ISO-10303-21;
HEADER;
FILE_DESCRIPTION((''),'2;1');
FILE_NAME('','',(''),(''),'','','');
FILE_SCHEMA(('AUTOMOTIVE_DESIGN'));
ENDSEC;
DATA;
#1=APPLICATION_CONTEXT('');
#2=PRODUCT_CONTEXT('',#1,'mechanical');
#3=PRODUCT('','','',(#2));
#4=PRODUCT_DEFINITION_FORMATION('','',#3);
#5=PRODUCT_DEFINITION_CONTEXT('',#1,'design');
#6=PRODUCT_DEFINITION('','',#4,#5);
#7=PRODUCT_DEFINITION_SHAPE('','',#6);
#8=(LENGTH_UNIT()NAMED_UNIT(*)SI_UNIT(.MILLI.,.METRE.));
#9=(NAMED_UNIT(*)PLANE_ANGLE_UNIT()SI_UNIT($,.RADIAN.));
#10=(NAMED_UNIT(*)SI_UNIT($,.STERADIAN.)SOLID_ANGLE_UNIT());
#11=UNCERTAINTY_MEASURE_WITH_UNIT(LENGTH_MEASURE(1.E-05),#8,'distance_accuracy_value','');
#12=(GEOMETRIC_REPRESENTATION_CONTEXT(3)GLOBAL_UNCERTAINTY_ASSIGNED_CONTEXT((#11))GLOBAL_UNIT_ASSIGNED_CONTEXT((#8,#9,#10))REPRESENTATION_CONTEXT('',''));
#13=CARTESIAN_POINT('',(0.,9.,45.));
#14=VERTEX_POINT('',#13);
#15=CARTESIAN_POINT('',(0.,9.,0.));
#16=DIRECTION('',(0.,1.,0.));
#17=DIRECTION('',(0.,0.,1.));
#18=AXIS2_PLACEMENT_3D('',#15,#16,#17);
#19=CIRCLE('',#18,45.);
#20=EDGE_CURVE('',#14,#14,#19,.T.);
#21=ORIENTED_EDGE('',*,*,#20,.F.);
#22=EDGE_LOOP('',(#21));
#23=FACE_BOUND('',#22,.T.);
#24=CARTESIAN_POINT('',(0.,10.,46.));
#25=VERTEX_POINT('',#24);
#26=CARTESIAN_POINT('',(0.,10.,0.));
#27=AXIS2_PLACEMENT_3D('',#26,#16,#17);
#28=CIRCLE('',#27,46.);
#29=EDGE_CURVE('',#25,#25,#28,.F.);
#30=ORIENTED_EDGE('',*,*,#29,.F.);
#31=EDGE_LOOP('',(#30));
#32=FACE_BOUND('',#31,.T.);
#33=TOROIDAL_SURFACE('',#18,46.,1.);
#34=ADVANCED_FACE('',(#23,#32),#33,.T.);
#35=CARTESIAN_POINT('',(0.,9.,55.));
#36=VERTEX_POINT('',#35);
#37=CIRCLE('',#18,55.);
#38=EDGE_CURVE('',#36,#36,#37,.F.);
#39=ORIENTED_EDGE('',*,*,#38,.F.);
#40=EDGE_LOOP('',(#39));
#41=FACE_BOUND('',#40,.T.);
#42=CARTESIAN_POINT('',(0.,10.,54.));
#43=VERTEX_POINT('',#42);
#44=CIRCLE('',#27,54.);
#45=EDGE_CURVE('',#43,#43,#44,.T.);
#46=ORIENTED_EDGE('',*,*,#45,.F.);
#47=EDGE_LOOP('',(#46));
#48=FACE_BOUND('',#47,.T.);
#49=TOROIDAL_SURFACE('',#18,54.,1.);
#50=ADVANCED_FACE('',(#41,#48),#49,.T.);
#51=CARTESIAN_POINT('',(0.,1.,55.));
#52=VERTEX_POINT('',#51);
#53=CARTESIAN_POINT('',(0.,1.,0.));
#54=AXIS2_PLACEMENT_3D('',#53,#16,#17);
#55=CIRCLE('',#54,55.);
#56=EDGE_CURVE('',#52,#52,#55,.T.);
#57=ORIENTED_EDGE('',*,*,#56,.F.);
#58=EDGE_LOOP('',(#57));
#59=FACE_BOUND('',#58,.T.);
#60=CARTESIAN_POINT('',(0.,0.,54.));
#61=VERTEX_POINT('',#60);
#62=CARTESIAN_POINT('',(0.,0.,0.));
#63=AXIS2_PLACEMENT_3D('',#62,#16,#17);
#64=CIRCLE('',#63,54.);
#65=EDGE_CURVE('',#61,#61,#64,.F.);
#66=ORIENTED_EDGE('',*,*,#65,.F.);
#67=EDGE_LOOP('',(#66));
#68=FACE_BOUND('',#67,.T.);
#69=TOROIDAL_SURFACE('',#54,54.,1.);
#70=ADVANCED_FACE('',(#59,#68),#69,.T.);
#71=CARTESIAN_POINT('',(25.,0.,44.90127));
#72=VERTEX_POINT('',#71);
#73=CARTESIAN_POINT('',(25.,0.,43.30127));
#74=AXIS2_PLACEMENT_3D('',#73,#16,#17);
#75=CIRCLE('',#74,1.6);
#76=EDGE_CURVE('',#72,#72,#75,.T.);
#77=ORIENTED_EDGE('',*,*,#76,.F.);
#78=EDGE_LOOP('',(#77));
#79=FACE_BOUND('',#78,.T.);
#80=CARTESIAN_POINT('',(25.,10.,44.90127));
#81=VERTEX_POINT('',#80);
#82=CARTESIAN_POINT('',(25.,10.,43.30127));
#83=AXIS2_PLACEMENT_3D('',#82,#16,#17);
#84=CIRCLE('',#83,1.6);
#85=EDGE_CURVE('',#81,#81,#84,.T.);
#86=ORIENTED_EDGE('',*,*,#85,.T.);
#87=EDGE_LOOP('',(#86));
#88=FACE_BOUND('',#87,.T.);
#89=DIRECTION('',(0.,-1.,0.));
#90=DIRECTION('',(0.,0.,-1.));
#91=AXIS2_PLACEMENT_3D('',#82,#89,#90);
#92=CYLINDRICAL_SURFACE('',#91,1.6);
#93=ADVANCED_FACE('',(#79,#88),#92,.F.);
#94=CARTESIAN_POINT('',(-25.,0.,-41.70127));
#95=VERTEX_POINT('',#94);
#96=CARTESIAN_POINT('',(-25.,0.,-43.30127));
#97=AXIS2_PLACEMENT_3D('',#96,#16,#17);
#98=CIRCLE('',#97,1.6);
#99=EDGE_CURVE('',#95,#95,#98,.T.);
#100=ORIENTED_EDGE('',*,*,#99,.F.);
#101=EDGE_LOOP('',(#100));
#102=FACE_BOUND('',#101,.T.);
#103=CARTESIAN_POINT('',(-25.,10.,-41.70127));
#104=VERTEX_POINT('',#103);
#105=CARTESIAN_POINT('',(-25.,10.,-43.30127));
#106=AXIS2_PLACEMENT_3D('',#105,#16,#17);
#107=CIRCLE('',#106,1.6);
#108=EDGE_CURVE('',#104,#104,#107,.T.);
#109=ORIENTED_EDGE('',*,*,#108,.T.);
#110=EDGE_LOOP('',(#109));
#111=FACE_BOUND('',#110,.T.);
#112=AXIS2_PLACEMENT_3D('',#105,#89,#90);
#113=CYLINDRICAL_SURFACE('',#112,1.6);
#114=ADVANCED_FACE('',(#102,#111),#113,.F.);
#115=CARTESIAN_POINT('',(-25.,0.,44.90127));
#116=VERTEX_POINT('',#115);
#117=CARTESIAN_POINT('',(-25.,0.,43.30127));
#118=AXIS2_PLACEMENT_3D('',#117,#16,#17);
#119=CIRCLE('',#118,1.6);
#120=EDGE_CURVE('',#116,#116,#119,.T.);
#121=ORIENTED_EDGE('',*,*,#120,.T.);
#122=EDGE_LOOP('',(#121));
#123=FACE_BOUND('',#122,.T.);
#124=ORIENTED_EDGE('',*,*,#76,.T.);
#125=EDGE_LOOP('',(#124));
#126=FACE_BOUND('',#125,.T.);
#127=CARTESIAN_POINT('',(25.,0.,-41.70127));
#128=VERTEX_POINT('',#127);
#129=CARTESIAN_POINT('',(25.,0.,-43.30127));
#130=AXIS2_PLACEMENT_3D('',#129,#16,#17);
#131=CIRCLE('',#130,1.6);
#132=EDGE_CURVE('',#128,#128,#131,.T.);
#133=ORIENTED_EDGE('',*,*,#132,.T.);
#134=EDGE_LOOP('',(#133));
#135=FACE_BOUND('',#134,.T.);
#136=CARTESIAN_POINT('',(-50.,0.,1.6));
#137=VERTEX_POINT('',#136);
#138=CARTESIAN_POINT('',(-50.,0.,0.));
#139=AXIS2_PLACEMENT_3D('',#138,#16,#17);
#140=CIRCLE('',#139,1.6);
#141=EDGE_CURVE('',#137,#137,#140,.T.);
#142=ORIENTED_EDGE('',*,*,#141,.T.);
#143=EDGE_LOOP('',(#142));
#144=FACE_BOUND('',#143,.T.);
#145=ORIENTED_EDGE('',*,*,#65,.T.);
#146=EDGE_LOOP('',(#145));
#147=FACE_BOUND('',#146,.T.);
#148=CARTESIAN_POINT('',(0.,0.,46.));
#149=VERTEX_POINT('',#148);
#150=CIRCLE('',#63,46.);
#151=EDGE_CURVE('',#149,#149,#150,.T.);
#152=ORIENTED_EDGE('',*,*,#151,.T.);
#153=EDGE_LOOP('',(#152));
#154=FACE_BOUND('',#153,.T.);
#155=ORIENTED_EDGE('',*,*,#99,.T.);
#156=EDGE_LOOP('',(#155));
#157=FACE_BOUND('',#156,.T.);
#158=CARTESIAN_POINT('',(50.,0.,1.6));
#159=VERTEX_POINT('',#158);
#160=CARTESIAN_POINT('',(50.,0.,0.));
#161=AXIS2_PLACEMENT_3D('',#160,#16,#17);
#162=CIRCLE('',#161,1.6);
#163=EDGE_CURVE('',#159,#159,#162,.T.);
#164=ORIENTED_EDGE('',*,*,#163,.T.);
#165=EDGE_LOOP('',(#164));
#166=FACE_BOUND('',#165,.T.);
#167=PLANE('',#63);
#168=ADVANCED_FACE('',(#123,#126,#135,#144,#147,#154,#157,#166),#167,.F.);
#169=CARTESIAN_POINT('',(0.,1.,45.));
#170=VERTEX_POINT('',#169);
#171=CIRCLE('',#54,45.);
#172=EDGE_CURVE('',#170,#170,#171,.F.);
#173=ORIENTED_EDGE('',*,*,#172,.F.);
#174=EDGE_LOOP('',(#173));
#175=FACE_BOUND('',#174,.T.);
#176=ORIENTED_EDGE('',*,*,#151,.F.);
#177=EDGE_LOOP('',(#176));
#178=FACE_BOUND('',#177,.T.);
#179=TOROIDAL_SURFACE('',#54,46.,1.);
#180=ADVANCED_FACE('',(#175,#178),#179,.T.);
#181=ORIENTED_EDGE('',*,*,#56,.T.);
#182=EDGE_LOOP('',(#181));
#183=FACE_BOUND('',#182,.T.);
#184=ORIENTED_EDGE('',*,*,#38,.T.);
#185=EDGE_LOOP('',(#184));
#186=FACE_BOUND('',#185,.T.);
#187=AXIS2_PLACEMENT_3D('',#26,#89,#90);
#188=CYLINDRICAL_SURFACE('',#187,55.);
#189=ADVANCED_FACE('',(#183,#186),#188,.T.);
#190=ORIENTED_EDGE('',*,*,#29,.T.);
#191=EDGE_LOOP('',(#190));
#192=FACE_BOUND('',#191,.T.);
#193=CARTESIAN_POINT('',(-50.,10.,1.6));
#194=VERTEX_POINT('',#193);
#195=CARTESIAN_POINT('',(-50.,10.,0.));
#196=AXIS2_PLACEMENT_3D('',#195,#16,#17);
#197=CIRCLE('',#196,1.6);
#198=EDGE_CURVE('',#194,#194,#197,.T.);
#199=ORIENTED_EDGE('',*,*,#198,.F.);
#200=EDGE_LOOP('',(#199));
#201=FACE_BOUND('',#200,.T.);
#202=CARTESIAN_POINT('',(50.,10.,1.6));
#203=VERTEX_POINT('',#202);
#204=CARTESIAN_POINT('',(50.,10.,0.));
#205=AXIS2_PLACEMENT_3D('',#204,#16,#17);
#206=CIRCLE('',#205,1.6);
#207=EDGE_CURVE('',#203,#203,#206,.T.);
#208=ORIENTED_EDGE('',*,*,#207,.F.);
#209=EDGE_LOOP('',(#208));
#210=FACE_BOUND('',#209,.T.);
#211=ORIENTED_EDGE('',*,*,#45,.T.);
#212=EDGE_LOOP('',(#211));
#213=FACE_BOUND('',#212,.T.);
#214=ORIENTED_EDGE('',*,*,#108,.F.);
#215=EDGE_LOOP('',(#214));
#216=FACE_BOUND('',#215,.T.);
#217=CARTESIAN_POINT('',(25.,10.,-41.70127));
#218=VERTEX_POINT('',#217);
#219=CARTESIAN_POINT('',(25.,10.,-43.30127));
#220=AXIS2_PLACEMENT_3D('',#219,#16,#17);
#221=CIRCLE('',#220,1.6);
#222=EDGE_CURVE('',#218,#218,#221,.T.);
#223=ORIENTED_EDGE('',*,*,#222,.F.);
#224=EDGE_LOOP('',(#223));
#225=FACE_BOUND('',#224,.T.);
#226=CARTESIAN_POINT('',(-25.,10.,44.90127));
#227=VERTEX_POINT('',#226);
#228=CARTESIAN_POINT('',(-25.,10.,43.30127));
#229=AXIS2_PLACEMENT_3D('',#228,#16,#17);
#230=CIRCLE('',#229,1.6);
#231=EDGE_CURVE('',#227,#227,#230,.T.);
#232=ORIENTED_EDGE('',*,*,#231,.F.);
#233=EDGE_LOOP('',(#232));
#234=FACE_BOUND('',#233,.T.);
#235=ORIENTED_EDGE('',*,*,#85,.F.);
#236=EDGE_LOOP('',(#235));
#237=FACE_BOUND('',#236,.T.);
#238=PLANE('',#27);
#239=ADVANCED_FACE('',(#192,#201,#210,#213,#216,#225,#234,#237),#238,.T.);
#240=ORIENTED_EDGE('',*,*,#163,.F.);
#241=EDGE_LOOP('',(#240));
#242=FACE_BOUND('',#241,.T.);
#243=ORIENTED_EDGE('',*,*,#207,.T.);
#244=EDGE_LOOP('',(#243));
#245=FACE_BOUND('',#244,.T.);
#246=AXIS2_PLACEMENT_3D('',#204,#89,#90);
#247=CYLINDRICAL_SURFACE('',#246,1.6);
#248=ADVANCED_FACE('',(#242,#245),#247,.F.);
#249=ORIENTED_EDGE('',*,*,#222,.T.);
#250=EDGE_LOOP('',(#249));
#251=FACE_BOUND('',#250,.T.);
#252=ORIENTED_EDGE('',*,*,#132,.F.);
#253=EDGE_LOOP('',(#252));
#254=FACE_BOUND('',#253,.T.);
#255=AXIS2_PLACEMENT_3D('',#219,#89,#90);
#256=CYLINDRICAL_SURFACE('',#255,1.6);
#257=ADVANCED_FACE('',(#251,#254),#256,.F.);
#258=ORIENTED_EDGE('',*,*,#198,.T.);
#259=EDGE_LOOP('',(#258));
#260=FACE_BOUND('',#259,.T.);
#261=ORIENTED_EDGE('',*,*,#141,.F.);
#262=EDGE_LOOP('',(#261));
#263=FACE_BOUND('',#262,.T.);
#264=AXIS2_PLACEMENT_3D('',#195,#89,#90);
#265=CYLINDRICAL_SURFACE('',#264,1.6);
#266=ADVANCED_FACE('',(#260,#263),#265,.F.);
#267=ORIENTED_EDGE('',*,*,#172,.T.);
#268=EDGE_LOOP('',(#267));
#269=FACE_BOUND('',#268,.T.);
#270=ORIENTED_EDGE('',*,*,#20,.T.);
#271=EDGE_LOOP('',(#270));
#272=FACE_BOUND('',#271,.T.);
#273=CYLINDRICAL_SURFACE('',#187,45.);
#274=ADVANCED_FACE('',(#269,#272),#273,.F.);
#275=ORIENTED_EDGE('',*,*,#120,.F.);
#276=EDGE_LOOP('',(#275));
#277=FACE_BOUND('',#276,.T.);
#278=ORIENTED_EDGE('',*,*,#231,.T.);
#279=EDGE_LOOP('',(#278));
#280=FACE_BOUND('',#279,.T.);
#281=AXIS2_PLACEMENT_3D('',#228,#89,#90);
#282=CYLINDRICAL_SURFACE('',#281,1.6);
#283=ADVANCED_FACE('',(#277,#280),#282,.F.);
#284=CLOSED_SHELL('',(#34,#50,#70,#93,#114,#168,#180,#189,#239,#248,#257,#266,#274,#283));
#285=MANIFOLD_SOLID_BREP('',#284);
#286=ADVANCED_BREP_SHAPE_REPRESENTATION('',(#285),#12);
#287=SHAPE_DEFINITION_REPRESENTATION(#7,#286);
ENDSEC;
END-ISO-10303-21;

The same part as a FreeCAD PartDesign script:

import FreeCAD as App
import Part
import Sketcher

V = App.Vector


def edges_at(feature, points):
    """Names of the edges that pass closest to the given points."""
    edges = feature.Shape.Edges
    near = lambda p: min(range(len(edges)), key=lambda i: edges[i].distToShape(Part.Vertex(*p))[0])
    return sorted({f"Edge{near(p) + 1}" for p in points})

doc = App.newDocument("Part")
body = doc.addObject("PartDesign::Body", "Body")

# Sketch on XZ plane
sketch1 = body.newObject("Sketcher::SketchObject", "Sketch")
sketch1.AttachmentSupport = (doc.getObject("XZ_Plane"), [""])
sketch1.MapMode = "FlatFace"
sketch1.addGeometry([
    Part.Circle(V(0, 0, 0), V(0, 0, 1), 55),  # 0
    Part.Circle(V(-25, -43.30127, 0), V(0, 0, 1), 1.6),  # 1
    Part.Circle(V(-50, 0, 0), V(0, 0, 1), 1.6),  # 2
    Part.Circle(V(-25, 43.30127, 0), V(0, 0, 1), 1.6),  # 3
    Part.Circle(V(25, -43.30127, 0), V(0, 0, 1), 1.6),  # 4
    Part.Circle(V(50, 0, 0), V(0, 0, 1), 1.6),  # 5
    Part.Circle(V(0, 0, 0), V(0, 0, 1), 45),  # 6
    Part.Circle(V(25, 43.30127, 0), V(0, 0, 1), 1.6),  # 7
], False)
sketch1.addConstraint([
    Sketcher.Constraint("Coincident", 0, 3, -1, 1),
    Sketcher.Constraint("Coincident", 6, 3, -1, 1),
    Sketcher.Constraint("Equal", 1, 2),
    Sketcher.Constraint("Equal", 2, 3),
    Sketcher.Constraint("Equal", 3, 4),
    Sketcher.Constraint("Equal", 4, 5),
    Sketcher.Constraint("Equal", 5, 7),
    Sketcher.Constraint("Symmetric", 3, 3, 4, 3, -1, 1),
    Sketcher.Constraint("Symmetric", 2, 3, 5, 3, -1, 1),
    Sketcher.Constraint("Symmetric", 1, 3, 7, 3, -1, 1),
    Sketcher.Constraint("Symmetric", 1, 3, 4, 3, -2),
    Sketcher.Constraint("PointOnObject", 2, 3, -1),
    Sketcher.Constraint("Diameter", 0, 110.0),
    Sketcher.Constraint("Diameter", 6, 90.0),
    Sketcher.Constraint("Diameter", 1, 3.2),
    Sketcher.Constraint("DistanceX", 1, 3, -1, 1, 25.0),
    Sketcher.Constraint("DistanceX", 2, 3, -1, 1, 50.0),
    Sketcher.Constraint("DistanceY", 1, 3, -1, 1, 43.30127),
])
pad1 = body.newObject("PartDesign::Pad", "Pad")
pad1.Profile = sketch1
pad1.Length = 10
pad1.Reversed = True
doc.recompute()

fillet = body.newObject("PartDesign::Fillet", "Fillet")
fillet.Base = (pad1, edges_at(pad1, [
    (0, 0, -55),
    (0, 10, -55),
    (0, 0, -45),
    (0, 10, -45),
]))
fillet.Radius = 1

doc.recompute()
